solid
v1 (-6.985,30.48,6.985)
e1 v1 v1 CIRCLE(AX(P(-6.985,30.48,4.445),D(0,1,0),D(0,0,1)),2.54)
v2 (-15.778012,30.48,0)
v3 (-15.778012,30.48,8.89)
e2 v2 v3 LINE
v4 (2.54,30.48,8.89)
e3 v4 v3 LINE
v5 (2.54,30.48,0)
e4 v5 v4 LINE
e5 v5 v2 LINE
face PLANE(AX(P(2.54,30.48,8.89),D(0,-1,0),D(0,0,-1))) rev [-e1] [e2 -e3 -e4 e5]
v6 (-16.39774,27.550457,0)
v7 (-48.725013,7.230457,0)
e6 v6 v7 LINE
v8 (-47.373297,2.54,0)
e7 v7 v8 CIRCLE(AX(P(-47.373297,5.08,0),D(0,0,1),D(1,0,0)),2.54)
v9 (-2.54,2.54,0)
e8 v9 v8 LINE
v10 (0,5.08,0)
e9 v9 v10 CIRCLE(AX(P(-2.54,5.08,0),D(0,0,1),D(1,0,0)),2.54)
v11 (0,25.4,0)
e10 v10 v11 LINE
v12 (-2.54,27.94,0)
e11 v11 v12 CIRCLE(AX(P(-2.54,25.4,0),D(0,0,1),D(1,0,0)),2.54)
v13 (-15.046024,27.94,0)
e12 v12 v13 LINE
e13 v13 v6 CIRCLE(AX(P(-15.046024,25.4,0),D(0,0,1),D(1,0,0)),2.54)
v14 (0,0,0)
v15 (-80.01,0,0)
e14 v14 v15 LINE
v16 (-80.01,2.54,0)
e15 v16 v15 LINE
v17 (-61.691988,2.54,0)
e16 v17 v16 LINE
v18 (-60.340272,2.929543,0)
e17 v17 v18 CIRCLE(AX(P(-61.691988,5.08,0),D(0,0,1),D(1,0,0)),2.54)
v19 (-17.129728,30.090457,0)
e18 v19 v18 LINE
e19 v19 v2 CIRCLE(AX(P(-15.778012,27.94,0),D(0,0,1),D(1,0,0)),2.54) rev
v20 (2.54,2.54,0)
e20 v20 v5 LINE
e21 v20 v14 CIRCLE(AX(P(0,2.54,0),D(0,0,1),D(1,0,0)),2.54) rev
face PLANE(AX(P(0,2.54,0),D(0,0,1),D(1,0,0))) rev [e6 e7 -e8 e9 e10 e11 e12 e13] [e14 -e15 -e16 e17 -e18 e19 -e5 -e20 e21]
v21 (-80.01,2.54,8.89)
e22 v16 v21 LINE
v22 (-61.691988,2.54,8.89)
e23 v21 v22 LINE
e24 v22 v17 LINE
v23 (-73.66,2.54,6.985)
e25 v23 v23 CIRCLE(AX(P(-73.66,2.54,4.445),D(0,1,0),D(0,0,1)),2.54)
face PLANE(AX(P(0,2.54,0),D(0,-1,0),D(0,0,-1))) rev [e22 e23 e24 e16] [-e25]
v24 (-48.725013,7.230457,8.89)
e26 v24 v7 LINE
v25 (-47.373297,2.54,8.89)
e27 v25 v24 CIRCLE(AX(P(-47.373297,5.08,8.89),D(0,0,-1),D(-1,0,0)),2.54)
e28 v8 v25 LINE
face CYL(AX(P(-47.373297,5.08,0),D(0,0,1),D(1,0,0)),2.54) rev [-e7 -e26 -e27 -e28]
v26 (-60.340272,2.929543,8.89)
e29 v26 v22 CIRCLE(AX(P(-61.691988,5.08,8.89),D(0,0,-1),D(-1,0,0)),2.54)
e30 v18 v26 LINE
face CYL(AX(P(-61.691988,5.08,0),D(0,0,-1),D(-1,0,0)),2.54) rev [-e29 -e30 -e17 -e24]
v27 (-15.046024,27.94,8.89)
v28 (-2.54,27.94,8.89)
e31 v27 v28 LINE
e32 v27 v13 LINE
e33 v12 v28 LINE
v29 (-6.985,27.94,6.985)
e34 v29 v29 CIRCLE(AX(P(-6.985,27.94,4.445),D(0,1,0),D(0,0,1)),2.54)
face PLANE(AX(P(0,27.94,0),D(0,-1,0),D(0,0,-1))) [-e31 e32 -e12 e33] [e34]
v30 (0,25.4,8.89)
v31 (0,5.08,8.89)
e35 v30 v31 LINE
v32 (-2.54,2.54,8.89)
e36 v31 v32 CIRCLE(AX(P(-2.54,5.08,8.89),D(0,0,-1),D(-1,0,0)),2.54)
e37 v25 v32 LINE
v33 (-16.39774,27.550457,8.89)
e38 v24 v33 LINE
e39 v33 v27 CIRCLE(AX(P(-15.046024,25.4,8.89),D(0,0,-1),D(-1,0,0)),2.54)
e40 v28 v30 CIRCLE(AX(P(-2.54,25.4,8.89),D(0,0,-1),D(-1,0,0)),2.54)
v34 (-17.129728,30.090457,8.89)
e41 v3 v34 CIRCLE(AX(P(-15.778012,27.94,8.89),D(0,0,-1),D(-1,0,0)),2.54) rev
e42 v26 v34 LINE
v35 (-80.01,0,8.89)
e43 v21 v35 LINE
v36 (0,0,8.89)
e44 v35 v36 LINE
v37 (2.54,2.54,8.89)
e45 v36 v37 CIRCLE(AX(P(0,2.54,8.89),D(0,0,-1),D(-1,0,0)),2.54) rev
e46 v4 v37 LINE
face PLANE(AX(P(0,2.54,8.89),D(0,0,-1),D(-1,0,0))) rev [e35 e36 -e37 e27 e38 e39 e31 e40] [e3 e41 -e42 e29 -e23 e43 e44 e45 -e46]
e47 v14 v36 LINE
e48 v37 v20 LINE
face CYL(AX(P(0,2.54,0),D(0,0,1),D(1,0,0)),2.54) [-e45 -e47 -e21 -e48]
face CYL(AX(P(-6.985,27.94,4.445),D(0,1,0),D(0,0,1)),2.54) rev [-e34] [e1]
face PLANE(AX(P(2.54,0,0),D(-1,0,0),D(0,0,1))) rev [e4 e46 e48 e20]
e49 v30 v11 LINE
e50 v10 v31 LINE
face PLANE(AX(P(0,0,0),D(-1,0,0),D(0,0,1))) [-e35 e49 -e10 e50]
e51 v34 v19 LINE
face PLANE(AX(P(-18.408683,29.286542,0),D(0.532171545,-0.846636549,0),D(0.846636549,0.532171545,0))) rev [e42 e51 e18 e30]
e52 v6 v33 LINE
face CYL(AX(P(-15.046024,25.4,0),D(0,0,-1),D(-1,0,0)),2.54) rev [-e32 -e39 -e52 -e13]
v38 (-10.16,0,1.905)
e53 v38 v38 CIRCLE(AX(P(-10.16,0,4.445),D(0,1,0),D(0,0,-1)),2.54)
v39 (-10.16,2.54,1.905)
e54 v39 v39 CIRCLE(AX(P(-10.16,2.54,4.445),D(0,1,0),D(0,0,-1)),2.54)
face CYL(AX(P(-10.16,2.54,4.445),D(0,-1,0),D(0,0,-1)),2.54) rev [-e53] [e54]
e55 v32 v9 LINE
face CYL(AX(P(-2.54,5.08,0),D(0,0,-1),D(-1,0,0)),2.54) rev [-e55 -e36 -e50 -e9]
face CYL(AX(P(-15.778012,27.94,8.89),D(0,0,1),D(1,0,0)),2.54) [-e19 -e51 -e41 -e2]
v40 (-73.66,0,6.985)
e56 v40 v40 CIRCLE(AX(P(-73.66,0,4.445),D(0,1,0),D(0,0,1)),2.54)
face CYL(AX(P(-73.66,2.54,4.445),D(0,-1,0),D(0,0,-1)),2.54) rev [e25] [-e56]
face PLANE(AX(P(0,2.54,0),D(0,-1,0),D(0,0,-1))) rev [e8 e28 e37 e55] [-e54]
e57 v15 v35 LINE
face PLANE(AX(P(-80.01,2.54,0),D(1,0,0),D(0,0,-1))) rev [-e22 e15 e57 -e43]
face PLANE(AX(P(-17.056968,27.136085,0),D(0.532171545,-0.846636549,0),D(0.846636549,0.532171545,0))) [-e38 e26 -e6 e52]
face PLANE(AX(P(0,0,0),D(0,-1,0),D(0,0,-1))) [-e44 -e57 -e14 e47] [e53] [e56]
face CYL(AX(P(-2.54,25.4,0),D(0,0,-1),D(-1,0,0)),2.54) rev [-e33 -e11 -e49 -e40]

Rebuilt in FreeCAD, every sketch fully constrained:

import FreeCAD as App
import Part
import Sketcher
from FreeCAD import Vector
Q = App.Units.Quantity


def edges_at(feature, points):
    """Names of the edges that pass closest to the given points."""
    edges = feature.Shape.Edges
    near = lambda p: min(range(len(edges)), key=lambda i: edges[i].distToShape(Part.Vertex(*p))[0])
    return sorted({f"Edge{near(p) + 1}" for p in points})


def add_polygon(sketch, points):
    """Adds a closed chain of lines whose ends are joined by coincident constraints."""
    first, n = sketch.GeometryCount, len(points)
    for a, b in zip(points, points[1:] + points[:1]):
        sketch.addGeometry(Part.LineSegment(App.Vector(*a, 0), App.Vector(*b, 0)), False)
    for i in range(n):
        sketch.addConstraint(Sketcher.Constraint("Coincident", first + i, 2, first + (i + 1) % n, 1))

doc = App.newDocument("Part")
body = doc.addObject("PartDesign::Body", "Body")

sketch1 = body.newObject("Sketcher::SketchObject", "Sketch")
sketch1.AttachmentSupport = (doc.getObject("XZ_Plane"), [""])
sketch1.MapMode = "FlatFace"
add_polygon(sketch1, [(-80, 0), (-80, 8.9), (0, 8.9), (0, 0)])
sketch1.addGeometry(Part.Circle(Vector(-73.7, 4.4, 0), Vector(0, 0, 1), 2.5), False)
sketch1.addGeometry(Part.Circle(Vector(-10.2, 4.4, 0), Vector(0, 0, 1), 2.5), False)
sketch1.addConstraint(Sketcher.Constraint("Vertical", 0))
sketch1.addConstraint(Sketcher.Constraint("Horizontal", 1))
sketch1.addConstraint(Sketcher.Constraint("Vertical", 2))
sketch1.addConstraint(Sketcher.Constraint("Horizontal", 3))
sketch1.addConstraint(Sketcher.Constraint("Coincident", 2, 2, -1, 1))
sketch1.addConstraint(Sketcher.Constraint("Equal", 4, 5))
sketch1.addConstraint(Sketcher.Constraint("Horizontal", 4, 3, 5, 3))
sketch1.addConstraint(Sketcher.Constraint("Diameter", 4, Q("0.2 in")))
sketch1.addConstraint(Sketcher.Constraint("DistanceX", 1, 1, 1, 2, Q("3.15 in")))
sketch1.addConstraint(Sketcher.Constraint("DistanceY", 0, 1, 0, 2, Q("0.35 in")))
sketch1.addConstraint(Sketcher.Constraint("DistanceX", 4, 3, -1, 1, Q("2.9 in")))
sketch1.addConstraint(Sketcher.Constraint("DistanceX", 5, 3, -1, 1, Q("0.4 in")))
sketch1.addConstraint(Sketcher.Constraint("DistanceY", -1, 1, 4, 3, Q("0.175 in")))
pad1 = body.newObject("PartDesign::Pad", "Pad")
pad1.Profile = sketch1
pad1.Length = Q("0.1 in")
pad1.Reversed = True

sketch2 = body.newObject("Sketcher::SketchObject", "Sketch001")
sketch2.AttachmentSupport = (doc.getObject("YZ_Plane"), [""])
sketch2.MapMode = "FlatFace"
add_polygon(sketch2, [(30, 9), (0, 9), (0, 0), (30, 0)])
sketch2.addConstraint(Sketcher.Constraint("Horizontal", 0))
sketch2.addConstraint(Sketcher.Constraint("Vertical", 1))
sketch2.addConstraint(Sketcher.Constraint("Horizontal", 2))
sketch2.addConstraint(Sketcher.Constraint("Vertical", 3))
sketch2.addConstraint(Sketcher.Constraint("Coincident", 1, 2, -1, 1))
sketch2.addConstraint(Sketcher.Constraint("DistanceX", 0, 2, 0, 1, Q("1.2 in")))
sketch2.addConstraint(Sketcher.Constraint("DistanceY", 1, 2, 1, 1, Q("0.35 in")))
pad2 = body.newObject("PartDesign::Pad", "Pad001")
pad2.Profile = sketch2
pad2.Length = Q("0.1 in")

sketch3 = body.newObject("Sketcher::SketchObject", "Sketch002")
sketch3.AttachmentSupport = (doc.getObject("XZ_Plane"), [""])
sketch3.MapMode = "FlatFace"
sketch3.AttachmentOffset = App.Placement(Vector(0, 0, -1.2 * 25.4), App.Rotation())
add_polygon(sketch3, [(-16.5, 0), (-16.5, 8.9), (2.5, 8.9), (2.5, 0)])
sketch3.addGeometry(Part.Circle(Vector(-7, 4.4, 0), Vector(0, 0, 1), 2.5), False)
sketch3.addConstraint(Sketcher.Constraint("Vertical", 0))
sketch3.addConstraint(Sketcher.Constraint("Horizontal", 1))
sketch3.addConstraint(Sketcher.Constraint("Vertical", 2))
sketch3.addConstraint(Sketcher.Constraint("Horizontal", 3))
sketch3.addConstraint(Sketcher.Constraint("PointOnObject", 2, 2, -1))
sketch3.addConstraint(Sketcher.Constraint("Diameter", 4, Q("0.2 in")))
sketch3.addConstraint(Sketcher.Constraint("DistanceX", 1, 1, 1, 2, Q("0.75 in")))
sketch3.addConstraint(Sketcher.Constraint("DistanceY", 0, 1, 0, 2, Q("0.35 in")))
sketch3.addConstraint(Sketcher.Constraint("DistanceX", -1, 1, 1, 2, Q("0.1 in")))
sketch3.addConstraint(Sketcher.Constraint("DistanceX", 4, 3, -1, 1, Q("0.275 in")))
sketch3.addConstraint(Sketcher.Constraint("DistanceY", -1, 1, 4, 3, Q("0.175 in")))
pad3 = body.newObject("PartDesign::Pad", "Pad002")
pad3.Profile = sketch3
pad3.Length = Q("0.1 in")

sketch4 = body.newObject("Sketcher::SketchObject", "Sketch003")
sketch4.Placement = App.Placement(Vector(-18.408683, 29.286542, 0), App.Rotation(Vector(0.846636549, 0.532171545, 0), Vector(0, 0, -0.999999999), Vector(-0.532171545, 0.846636549, 0), "ZXY"))
add_polygon(sketch4, [(-50, 0), (-50, -9), (2, -9), (2, 0)])
sketch4.addConstraint(Sketcher.Constraint("Vertical", 0))
sketch4.addConstraint(Sketcher.Constraint("Horizontal", 1))
sketch4.addConstraint(Sketcher.Constraint("Vertical", 2))
sketch4.addConstraint(Sketcher.Constraint("Horizontal", 3))
sketch4.addConstraint(Sketcher.Constraint("PointOnObject", 2, 2, -1))
sketch4.addConstraint(Sketcher.Constraint("DistanceY", 0, 2, 0, 1, Q("0.35 in")))
sketch4.addConstraint(Sketcher.Constraint("DistanceX", 1, 1, 1, 2, Q("52.501868 mm")))
sketch4.addConstraint(Sketcher.Constraint("DistanceX", 0, 2, -1, 1, Q("50.259248 mm")))
pad4 = body.newObject("PartDesign::Pad", "Pad003")
pad4.Profile = sketch4
pad4.Length = Q("0.1 in")
pad4.Reversed = True
doc.recompute()

fillet = body.newObject("PartDesign::Fillet", "Fillet")
fillet.Base = (pad4, edges_at(pad4, [
    (2.54, 0, 4.445),
    (0, 2.54, 4.445),
    (0, 27.94, 4.445),
    (-16.51, 30.48, 4.445),
    (-15.778, 27.94, 4.445),
    (-56.187, 2.54, 4.445),
    (-60.96, 2.54, 4.445),
]))
fillet.Radius = Q("0.1 in")

doc.recompute()
